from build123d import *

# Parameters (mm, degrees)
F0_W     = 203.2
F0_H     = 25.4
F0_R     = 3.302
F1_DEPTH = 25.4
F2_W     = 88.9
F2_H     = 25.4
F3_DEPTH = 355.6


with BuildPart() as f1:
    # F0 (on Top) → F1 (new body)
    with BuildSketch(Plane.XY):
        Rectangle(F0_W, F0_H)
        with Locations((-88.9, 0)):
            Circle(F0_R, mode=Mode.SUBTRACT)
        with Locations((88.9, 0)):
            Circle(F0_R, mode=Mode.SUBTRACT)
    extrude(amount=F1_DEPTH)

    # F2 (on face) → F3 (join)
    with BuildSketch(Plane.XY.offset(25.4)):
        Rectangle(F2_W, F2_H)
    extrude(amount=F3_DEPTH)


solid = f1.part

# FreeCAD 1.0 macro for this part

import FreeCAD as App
import Part
import Sketcher
from FreeCAD import Vector
Q = App.Units.Quantity


def add_polygon(sketch, points):
    """Adds a closed chain of lines whose ends are joined by coincident constraints."""
    first, n = sketch.GeometryCount, len(points)
    for a, b in zip(points, points[1:] + points[:1]):
        sketch.addGeometry(Part.LineSegment(App.Vector(*a, 0), App.Vector(*b, 0)), False)
    for i in range(n):
        sketch.addConstraint(Sketcher.Constraint("Coincident", first + i, 2, first + (i + 1) % n, 1))

doc = App.newDocument("Part")
body = doc.addObject("PartDesign::Body", "Body")

# Sketch on XY plane
sketch1 = doc.addObject("Sketcher::SketchObject", "Sketch")
body.addObject(sketch1)
sketch1.AttachmentSupport = (doc.XY_Plane, [""])
sketch1.MapMode = "FlatFace"
add_polygon(sketch1, [(-101.6, 12.7), (-101.6, -12.7), (101.6, -12.7), (101.6, 12.7)])  # lines 0-3
sketch1.addGeometry(Part.Circle(Vector(-88.9, 0, 0), Vector(0, 0, 1), 3.3), False)  # 4
sketch1.addGeometry(Part.Circle(Vector(88.9, 0, 0), Vector(0, 0, 1), 3.3), False)  # 5
sketch1.addConstraint([
    Sketcher.Constraint("Vertical", 0),
    Sketcher.Constraint("Horizontal", 1),
    Sketcher.Constraint("Vertical", 2),
    Sketcher.Constraint("Horizontal", 3),
    Sketcher.Constraint("Equal", 4, 5),
    Sketcher.Constraint("Symmetric", 4, 3, 5, 3, -1, 1),
    Sketcher.Constraint("Symmetric", 0, 2, 2, 2, -1, 1),
    Sketcher.Constraint("PointOnObject", 4, 3, -1),
    Sketcher.Constraint("Diameter", 4, Q("0.26 in")),
    Sketcher.Constraint("DistanceX", 1, 1, 1, 2, Q("8 in")),
    Sketcher.Constraint("DistanceY", 0, 2, 0, 1, Q("1 in")),
    Sketcher.Constraint("DistanceX", 4, 3, 5, 3, Q("7 in")),
])
pad1 = doc.addObject("PartDesign::Pad", "Pad")
body.addObject(pad1)
pad1.Profile = sketch1
pad1.Length = Q("1 in")

# Sketch on XY plane
sketch2 = doc.addObject("Sketcher::SketchObject", "Sketch001")
body.addObject(sketch2)
sketch2.AttachmentSupport = (doc.XY_Plane, [""])
sketch2.MapMode = "FlatFace"
sketch2.AttachmentOffset = App.Placement(Vector(0, 0, 1 * 25.4), App.Rotation())
add_polygon(sketch2, [(-44, 13), (-44, -13), (44, -13), (44, 13)])  # lines 0-3
sketch2.addConstraint([
    Sketcher.Constraint("Vertical", 0),
    Sketcher.Constraint("Horizontal", 1),
    Sketcher.Constraint("Vertical", 2),
    Sketcher.Constraint("Horizontal", 3),
    Sketcher.Constraint("Symmetric", 0, 2, 2, 2, -1, 1),
    Sketcher.Constraint("DistanceY", 0, 2, 0, 1, Q("1 in")),
    Sketcher.Constraint("DistanceX", 1, 1, 1, 2, Q("3.5 in")),
])
pad2 = doc.addObject("PartDesign::Pad", "Pad001")
body.addObject(pad2)
pad2.Profile = sketch2
pad2.Length = Q("14 in")

doc.recompute()
